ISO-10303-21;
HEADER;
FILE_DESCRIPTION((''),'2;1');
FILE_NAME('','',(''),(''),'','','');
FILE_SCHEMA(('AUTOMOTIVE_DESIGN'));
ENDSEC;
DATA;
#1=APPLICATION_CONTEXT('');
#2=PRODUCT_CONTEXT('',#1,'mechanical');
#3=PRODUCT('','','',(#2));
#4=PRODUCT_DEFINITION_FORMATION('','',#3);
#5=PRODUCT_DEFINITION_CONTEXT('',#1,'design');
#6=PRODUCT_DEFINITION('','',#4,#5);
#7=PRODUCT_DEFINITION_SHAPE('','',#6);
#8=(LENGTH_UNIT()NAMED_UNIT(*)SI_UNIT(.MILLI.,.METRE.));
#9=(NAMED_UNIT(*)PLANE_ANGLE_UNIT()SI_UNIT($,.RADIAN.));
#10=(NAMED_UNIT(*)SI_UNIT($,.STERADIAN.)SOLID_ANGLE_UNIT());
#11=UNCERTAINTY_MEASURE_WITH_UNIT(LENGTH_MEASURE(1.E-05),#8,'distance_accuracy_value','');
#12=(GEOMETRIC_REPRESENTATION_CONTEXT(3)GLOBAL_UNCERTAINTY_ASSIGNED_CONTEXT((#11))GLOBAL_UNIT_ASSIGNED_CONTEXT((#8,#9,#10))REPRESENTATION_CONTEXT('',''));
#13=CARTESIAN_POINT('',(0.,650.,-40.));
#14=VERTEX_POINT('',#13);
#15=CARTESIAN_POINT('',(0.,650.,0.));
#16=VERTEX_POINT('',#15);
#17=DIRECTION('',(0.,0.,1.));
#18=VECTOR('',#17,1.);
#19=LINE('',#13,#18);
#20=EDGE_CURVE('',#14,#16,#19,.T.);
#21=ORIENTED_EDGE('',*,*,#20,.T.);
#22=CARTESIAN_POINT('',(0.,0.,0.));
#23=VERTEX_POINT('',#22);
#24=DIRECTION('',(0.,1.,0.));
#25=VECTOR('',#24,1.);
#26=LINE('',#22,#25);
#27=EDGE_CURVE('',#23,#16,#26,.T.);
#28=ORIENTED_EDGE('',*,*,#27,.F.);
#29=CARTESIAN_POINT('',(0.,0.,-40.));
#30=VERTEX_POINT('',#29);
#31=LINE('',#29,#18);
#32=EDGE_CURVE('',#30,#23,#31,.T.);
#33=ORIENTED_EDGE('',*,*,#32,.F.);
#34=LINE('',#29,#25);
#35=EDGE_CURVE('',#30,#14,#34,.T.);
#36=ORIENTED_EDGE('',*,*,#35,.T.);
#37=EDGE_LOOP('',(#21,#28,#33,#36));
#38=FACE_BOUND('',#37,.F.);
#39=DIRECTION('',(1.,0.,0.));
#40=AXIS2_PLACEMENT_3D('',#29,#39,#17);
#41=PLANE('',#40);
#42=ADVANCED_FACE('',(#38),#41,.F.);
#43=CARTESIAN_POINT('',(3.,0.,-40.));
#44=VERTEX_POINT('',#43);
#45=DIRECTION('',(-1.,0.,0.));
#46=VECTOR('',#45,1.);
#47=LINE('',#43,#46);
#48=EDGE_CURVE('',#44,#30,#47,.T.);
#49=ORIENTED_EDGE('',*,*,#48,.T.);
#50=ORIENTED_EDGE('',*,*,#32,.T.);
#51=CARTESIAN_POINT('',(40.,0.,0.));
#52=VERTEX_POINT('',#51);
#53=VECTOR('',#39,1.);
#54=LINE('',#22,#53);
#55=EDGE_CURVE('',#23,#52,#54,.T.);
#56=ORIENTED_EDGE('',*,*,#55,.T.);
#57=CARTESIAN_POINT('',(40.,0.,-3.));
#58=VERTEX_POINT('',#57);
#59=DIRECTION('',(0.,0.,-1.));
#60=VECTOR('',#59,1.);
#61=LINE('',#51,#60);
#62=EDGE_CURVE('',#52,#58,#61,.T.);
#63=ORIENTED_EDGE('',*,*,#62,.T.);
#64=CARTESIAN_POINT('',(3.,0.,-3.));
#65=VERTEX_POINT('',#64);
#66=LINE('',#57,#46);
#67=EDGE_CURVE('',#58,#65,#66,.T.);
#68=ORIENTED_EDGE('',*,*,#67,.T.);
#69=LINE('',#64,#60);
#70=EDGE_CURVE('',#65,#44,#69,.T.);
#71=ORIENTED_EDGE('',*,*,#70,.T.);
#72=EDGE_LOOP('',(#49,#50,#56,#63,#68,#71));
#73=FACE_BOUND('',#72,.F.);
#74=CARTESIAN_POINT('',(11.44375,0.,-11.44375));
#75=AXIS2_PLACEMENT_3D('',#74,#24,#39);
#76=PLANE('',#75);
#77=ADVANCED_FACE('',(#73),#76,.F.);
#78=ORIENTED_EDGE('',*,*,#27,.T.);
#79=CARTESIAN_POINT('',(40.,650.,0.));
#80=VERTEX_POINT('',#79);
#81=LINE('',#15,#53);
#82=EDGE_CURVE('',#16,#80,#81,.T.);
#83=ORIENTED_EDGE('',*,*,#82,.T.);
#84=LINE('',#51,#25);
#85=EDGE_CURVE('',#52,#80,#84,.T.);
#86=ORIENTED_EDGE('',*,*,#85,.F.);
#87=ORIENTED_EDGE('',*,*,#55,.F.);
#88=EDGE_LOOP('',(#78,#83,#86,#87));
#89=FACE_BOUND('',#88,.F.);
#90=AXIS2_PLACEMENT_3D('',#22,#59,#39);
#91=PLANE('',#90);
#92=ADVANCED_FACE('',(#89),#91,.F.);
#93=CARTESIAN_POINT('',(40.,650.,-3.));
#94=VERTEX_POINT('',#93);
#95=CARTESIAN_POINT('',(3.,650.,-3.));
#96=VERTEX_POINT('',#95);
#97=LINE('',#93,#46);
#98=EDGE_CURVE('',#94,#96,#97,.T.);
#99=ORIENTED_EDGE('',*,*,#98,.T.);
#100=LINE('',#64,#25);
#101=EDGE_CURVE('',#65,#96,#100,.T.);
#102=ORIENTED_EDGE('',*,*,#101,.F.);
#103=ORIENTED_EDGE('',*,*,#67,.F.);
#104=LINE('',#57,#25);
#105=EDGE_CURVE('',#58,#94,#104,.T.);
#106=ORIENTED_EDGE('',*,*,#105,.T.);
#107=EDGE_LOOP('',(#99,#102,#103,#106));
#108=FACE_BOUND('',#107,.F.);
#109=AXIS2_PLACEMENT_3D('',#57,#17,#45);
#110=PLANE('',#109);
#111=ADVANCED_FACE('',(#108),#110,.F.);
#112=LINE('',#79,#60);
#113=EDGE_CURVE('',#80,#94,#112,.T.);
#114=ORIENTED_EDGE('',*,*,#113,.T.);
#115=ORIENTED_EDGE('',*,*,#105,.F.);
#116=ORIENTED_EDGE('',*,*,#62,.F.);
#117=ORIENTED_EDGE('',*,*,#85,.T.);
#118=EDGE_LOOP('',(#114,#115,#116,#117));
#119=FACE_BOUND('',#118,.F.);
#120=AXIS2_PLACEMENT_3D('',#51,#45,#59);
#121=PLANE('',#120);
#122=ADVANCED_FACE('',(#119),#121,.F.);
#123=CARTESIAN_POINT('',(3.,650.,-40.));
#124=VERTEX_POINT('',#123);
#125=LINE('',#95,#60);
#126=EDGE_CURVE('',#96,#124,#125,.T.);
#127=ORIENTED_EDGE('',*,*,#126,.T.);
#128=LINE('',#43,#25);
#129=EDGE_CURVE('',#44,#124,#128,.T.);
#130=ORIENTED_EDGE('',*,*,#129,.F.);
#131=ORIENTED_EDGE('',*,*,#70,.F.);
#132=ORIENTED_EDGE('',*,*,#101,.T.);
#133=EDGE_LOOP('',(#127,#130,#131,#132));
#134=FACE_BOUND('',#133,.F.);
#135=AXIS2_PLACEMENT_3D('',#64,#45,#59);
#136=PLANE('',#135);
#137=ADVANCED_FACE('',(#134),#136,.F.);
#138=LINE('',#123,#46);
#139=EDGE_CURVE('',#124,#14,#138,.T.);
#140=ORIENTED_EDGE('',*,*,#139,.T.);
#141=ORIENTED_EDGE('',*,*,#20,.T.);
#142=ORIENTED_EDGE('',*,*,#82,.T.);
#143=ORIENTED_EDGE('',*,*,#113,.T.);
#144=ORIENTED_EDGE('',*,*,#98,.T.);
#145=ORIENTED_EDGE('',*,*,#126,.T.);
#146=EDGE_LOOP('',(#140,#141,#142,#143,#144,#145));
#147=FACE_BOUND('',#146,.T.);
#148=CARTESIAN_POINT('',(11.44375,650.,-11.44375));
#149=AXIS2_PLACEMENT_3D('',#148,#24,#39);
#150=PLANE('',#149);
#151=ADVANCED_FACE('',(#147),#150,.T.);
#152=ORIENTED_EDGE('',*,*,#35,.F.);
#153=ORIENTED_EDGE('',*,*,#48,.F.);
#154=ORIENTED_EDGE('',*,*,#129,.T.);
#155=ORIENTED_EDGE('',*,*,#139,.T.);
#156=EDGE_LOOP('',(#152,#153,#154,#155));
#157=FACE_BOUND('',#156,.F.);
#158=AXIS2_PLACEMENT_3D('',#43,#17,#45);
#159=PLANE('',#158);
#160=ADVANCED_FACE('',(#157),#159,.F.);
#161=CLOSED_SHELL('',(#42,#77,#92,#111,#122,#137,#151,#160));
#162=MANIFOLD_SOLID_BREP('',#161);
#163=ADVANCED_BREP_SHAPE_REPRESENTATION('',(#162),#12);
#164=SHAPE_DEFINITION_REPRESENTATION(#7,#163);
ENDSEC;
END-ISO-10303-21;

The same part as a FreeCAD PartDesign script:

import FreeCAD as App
import Part
import Sketcher

doc = App.newDocument("Part")
params = doc.addObject("Spreadsheet::Sheet", "Params")
for row, (alias, value) in enumerate([
    ("sketch1_width", "40 mm"),
    ("sketch1_width2", "37 mm"),
    ("pad1_length", "650 mm"),
], start=1):
    params.set(f"A{row}", alias)
    params.set(f"B{row}", "=" + value)
    params.setAlias(f"B{row}", alias)

body = doc.addObject("PartDesign::Body", "Body")

sketch1 = body.newObject("Sketcher::SketchObject", "Sketch")
sketch1.AttachmentSupport = (doc.getObject("XZ_Plane"), [""])
sketch1.MapMode = "FlatFace"
sketch1.addGeometry([
    Part.LineSegment(App.Vector(0, -40, 0), App.Vector(0, 0, 0)),
    Part.LineSegment(App.Vector(0, 0, 0), App.Vector(40, 0, 0)),
    Part.LineSegment(App.Vector(40, 0, 0), App.Vector(40, -3, 0)),
    Part.LineSegment(App.Vector(40, -3, 0), App.Vector(3, -3, 0)),
    Part.LineSegment(App.Vector(3, -3, 0), App.Vector(3, -40, 0)),
    Part.LineSegment(App.Vector(3, -40, 0), App.Vector(0, -40, 0)),
], False)
sketch1.addConstraint([
    Sketcher.Constraint("Coincident", 0, 2, 1, 1),
    Sketcher.Constraint("Coincident", 1, 2, 2, 1),
    Sketcher.Constraint("Coincident", 2, 2, 3, 1),
    Sketcher.Constraint("Coincident", 3, 2, 4, 1),
    Sketcher.Constraint("Coincident", 4, 2, 5, 1),
    Sketcher.Constraint("Coincident", 5, 2, 0, 1),
    Sketcher.Constraint("Vertical", 0),
    Sketcher.Constraint("Horizontal", 1),
    Sketcher.Constraint("Vertical", 2),
    Sketcher.Constraint("Horizontal", 3),
    Sketcher.Constraint("Vertical", 4),
    Sketcher.Constraint("Horizontal", 5),
    Sketcher.Constraint("Coincident", 0, 2, -1, 1),
    Sketcher.Constraint("Equal", 1, 0),
    Sketcher.Constraint("Equal", 5, 2),
    Sketcher.Constraint("DistanceX", 1, 1, 1, 2, 40.0),
    Sketcher.Constraint("DistanceX", 3, 2, 3, 1, 37.0),
])
sketch1.setExpression("Constraints[15]", "Params.sketch1_width")
sketch1.setExpression("Constraints[16]", "Params.sketch1_width2")
pad1 = body.newObject("PartDesign::Pad", "Pad")
pad1.Profile = sketch1
pad1.setExpression("Length", "Params.pad1_length")
pad1.Reversed = True

doc.recompute()
